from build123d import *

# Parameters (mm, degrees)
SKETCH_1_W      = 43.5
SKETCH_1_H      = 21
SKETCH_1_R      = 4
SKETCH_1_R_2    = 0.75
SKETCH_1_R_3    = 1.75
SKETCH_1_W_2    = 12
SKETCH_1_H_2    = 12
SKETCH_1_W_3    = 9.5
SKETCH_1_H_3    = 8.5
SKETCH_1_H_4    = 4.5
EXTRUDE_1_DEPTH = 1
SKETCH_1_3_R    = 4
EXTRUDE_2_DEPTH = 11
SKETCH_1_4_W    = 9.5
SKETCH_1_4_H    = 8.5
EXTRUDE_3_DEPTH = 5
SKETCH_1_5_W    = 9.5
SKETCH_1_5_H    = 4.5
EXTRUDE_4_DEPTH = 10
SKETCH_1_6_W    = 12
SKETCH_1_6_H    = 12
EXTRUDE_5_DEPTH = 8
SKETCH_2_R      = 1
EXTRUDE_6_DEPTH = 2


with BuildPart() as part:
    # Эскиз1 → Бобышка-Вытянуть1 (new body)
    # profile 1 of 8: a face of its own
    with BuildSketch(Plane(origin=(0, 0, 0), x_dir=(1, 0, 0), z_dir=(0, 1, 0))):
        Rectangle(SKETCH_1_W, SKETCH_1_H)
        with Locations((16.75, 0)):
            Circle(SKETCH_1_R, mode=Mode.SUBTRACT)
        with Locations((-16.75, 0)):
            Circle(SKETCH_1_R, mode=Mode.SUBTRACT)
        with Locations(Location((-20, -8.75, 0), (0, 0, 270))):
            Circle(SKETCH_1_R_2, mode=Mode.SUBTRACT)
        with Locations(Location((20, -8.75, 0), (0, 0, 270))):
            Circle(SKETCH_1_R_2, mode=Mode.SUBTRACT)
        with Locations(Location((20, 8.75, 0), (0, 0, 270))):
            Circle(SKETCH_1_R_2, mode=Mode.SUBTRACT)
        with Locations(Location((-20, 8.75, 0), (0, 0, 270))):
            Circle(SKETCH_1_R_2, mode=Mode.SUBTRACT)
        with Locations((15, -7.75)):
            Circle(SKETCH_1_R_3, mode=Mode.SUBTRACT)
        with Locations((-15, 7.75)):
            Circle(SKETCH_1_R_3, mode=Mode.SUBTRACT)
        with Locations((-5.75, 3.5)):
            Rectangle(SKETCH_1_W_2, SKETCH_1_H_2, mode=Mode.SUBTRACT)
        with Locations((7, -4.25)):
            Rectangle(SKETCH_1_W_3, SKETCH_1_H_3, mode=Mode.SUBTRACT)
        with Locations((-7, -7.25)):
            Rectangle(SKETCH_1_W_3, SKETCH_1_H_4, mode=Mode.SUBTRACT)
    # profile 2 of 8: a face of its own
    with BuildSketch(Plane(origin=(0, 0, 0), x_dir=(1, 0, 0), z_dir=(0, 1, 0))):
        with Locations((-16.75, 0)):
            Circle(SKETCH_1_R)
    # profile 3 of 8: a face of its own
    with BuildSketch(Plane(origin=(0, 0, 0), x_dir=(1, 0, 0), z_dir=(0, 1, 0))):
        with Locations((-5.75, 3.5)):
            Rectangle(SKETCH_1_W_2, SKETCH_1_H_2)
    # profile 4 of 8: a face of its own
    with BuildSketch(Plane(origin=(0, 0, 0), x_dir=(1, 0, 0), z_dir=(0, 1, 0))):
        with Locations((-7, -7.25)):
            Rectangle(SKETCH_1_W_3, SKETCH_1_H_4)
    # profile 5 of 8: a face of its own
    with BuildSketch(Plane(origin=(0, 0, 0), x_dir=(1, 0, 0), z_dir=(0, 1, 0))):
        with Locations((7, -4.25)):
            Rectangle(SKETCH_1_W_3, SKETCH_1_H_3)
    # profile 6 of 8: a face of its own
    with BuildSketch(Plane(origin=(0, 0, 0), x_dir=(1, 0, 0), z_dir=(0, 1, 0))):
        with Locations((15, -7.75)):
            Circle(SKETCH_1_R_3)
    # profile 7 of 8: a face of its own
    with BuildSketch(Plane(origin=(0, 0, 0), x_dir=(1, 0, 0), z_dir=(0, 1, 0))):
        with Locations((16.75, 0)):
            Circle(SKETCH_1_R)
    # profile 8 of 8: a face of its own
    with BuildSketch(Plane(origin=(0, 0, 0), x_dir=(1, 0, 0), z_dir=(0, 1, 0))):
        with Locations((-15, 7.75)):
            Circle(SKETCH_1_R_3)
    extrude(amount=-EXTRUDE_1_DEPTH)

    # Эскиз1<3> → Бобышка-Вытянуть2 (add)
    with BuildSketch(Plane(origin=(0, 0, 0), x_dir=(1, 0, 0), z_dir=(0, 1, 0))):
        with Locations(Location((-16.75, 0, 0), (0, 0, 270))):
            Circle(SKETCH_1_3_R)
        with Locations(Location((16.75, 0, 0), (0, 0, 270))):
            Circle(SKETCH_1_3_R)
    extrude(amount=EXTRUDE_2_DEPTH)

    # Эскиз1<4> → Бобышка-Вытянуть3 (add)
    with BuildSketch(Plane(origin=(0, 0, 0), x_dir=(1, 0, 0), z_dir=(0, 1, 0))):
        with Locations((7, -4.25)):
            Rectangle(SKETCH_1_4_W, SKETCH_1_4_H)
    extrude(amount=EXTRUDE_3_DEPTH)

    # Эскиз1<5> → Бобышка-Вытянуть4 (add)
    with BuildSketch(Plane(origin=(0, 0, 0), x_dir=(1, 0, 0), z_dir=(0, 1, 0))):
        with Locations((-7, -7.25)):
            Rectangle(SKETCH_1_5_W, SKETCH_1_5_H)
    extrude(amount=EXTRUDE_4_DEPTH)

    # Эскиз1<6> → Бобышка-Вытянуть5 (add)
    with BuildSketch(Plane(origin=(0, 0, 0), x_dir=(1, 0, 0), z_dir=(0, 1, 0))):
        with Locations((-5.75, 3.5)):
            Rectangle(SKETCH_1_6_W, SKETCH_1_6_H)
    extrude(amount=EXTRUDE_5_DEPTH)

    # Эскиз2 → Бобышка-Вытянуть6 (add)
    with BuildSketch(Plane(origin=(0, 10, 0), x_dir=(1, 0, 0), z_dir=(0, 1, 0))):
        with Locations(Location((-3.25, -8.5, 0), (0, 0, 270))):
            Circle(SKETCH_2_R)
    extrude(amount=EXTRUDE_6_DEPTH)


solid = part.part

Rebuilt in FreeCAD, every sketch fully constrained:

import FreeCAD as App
import Part
import Sketcher

doc = App.newDocument("Part")
body = doc.addObject("PartDesign::Body", "Body")

# Sketch on XZ plane
sketch1 = body.newObject("Sketcher::SketchObject", "Sketch")
sketch1.AttachmentSupport = (doc.getObject("XZ_Plane"), [""])
sketch1.MapMode = "FlatFace"
sketch1.addGeometry(Part.LineSegment(App.Vector(-21.8, -10.5, 0), App.Vector(-21.8, 10.5, 0)), False)
sketch1.addGeometry(Part.LineSegment(App.Vector(-21.8, 10.5, 0), App.Vector(21.8, 10.5, 0)), False)
sketch1.addGeometry(Part.LineSegment(App.Vector(21.8, 10.5, 0), App.Vector(21.8, -10.5, 0)), False)
sketch1.addGeometry(Part.LineSegment(App.Vector(21.8, -10.5, 0), App.Vector(-21.8, -10.5, 0)), False)
sketch1.addGeometry(Part.Circle(App.Vector(-20, 8.8, 0), App.Vector(0, 0, 1), 0.8), False)
sketch1.addGeometry(Part.Circle(App.Vector(20, 8.8, 0), App.Vector(0, 0, 1), 0.8), False)
sketch1.addGeometry(Part.Circle(App.Vector(-20, -8.8, 0), App.Vector(0, 0, 1), 0.8), False)
sketch1.addGeometry(Part.Circle(App.Vector(20, -8.8, 0), App.Vector(0, 0, 1), 0.8), False)
sketch1.addConstraint(Sketcher.Constraint("Coincident", 0, 2, 1, 1))
sketch1.addConstraint(Sketcher.Constraint("Coincident", 1, 2, 2, 1))
sketch1.addConstraint(Sketcher.Constraint("Coincident", 2, 2, 3, 1))
sketch1.addConstraint(Sketcher.Constraint("Coincident", 3, 2, 0, 1))
sketch1.addConstraint(Sketcher.Constraint("Vertical", 0))
sketch1.addConstraint(Sketcher.Constraint("Horizontal", 1))
sketch1.addConstraint(Sketcher.Constraint("Vertical", 2))
sketch1.addConstraint(Sketcher.Constraint("Horizontal", 3))
sketch1.addConstraint(Sketcher.Constraint("Equal", 4, 5))
sketch1.addConstraint(Sketcher.Constraint("Equal", 5, 6))
sketch1.addConstraint(Sketcher.Constraint("Equal", 6, 7))
sketch1.addConstraint(Sketcher.Constraint("Symmetric", 5, 3, 6, 3, -1, 1))
sketch1.addConstraint(Sketcher.Constraint("Symmetric", 4, 3, 7, 3, -1, 1))
sketch1.addConstraint(Sketcher.Constraint("Symmetric", 0, 2, 2, 2, -1, 1))
sketch1.addConstraint(Sketcher.Constraint("Symmetric", 4, 3, 5, 3, -2))
sketch1.addConstraint(Sketcher.Constraint("Diameter", 4, 1.5))
sketch1.addConstraint(Sketcher.Constraint("DistanceY", 0, 1, 0, 2, 21.0))
sketch1.addConstraint(Sketcher.Constraint("DistanceX", 1, 1, 1, 2, 43.5))
sketch1.addConstraint(Sketcher.Constraint("DistanceX", 4, 3, -1, 1, 20.0))
sketch1.addConstraint(Sketcher.Constraint("DistanceY", 6, 3, 4, 3, 17.5))
pad1 = body.newObject("PartDesign::Pad", "Pad")
pad1.Profile = sketch1
pad1.Length = 1

# Sketch on XZ plane
sketch2 = body.newObject("Sketcher::SketchObject", "Sketch001")
sketch2.AttachmentSupport = (doc.getObject("XZ_Plane"), [""])
sketch2.MapMode = "FlatFace"
sketch2.addGeometry(Part.Circle(App.Vector(-16.8, 0, 0), App.Vector(0, 0, 1), 4), False)
sketch2.addGeometry(Part.Circle(App.Vector(16.8, 0, 0), App.Vector(0, 0, 1), 4), False)
sketch2.addConstraint(Sketcher.Constraint("Equal", 0, 1))
sketch2.addConstraint(Sketcher.Constraint("Symmetric", 0, 3, 1, 3, -1, 1))
sketch2.addConstraint(Sketcher.Constraint("PointOnObject", 0, 3, -1))
sketch2.addConstraint(Sketcher.Constraint("Diameter", 0, 8.0))
sketch2.addConstraint(Sketcher.Constraint("DistanceX", 0, 3, 1, 3, 33.5))
pad2 = body.newObject("PartDesign::Pad", "Pad001")
pad2.Profile = sketch2
pad2.Length = 11
pad2.Reversed = True

# Sketch on XZ plane
sketch3 = body.newObject("Sketcher::SketchObject", "Sketch002")
sketch3.AttachmentSupport = (doc.getObject("XZ_Plane"), [""])
sketch3.MapMode = "FlatFace"
sketch3.addGeometry(Part.LineSegment(App.Vector(2, 0, 0), App.Vector(2, 8, 0)), False)
sketch3.addGeometry(Part.LineSegment(App.Vector(2, 8, 0), App.Vector(12, 8, 0)), False)
sketch3.addGeometry(Part.LineSegment(App.Vector(12, 8, 0), App.Vector(12, 0, 0)), False)
sketch3.addGeometry(Part.LineSegment(App.Vector(12, 0, 0), App.Vector(2, 0, 0)), False)
sketch3.addConstraint(Sketcher.Constraint("Coincident", 0, 2, 1, 1))
sketch3.addConstraint(Sketcher.Constraint("Coincident", 1, 2, 2, 1))
sketch3.addConstraint(Sketcher.Constraint("Coincident", 2, 2, 3, 1))
sketch3.addConstraint(Sketcher.Constraint("Coincident", 3, 2, 0, 1))
sketch3.addConstraint(Sketcher.Constraint("Vertical", 0))
sketch3.addConstraint(Sketcher.Constraint("Horizontal", 1))
sketch3.addConstraint(Sketcher.Constraint("Vertical", 2))
sketch3.addConstraint(Sketcher.Constraint("Horizontal", 3))
sketch3.addConstraint(Sketcher.Constraint("PointOnObject", 2, 2, -1))
sketch3.addConstraint(Sketcher.Constraint("DistanceX", 1, 1, 1, 2, 9.5))
sketch3.addConstraint(Sketcher.Constraint("DistanceY", 0, 1, 0, 2, 8.5))
sketch3.addConstraint(Sketcher.Constraint("DistanceX", -1, 1, 0, 2, 2.25))
pad3 = body.newObject("PartDesign::Pad", "Pad002")
pad3.Profile = sketch3
pad3.Length = 5
pad3.Reversed = True

# Sketch on XZ plane
sketch4 = body.newObject("Sketcher::SketchObject", "Sketch003")
sketch4.AttachmentSupport = (doc.getObject("XZ_Plane"), [""])
sketch4.MapMode = "FlatFace"
sketch4.addGeometry(Part.LineSegment(App.Vector(-11.8, 5, 0), App.Vector(-11.8, 9.5, 0)), False)
sketch4.addGeometry(Part.LineSegment(App.Vector(-11.8, 9.5, 0), App.Vector(-2.2, 9.5, 0)), False)
sketch4.addGeometry(Part.LineSegment(App.Vector(-2.2, 9.5, 0), App.Vector(-2.2, 5, 0)), False)
sketch4.addGeometry(Part.LineSegment(App.Vector(-2.2, 5, 0), App.Vector(-11.8, 5, 0)), False)
sketch4.addConstraint(Sketcher.Constraint("Coincident", 0, 2, 1, 1))
sketch4.addConstraint(Sketcher.Constraint("Coincident", 1, 2, 2, 1))
sketch4.addConstraint(Sketcher.Constraint("Coincident", 2, 2, 3, 1))
sketch4.addConstraint(Sketcher.Constraint("Coincident", 3, 2, 0, 1))
sketch4.addConstraint(Sketcher.Constraint("Vertical", 0))
sketch4.addConstraint(Sketcher.Constraint("Horizontal", 1))
sketch4.addConstraint(Sketcher.Constraint("Vertical", 2))
sketch4.addConstraint(Sketcher.Constraint("Horizontal", 3))
sketch4.addConstraint(Sketcher.Constraint("DistanceX", 1, 1, 1, 2, 9.5))
sketch4.addConstraint(Sketcher.Constraint("DistanceY", 0, 1, 0, 2, 4.5))
sketch4.addConstraint(Sketcher.Constraint("DistanceY", -1, 1, 2, 2, 5.0))
sketch4.addConstraint(Sketcher.Constraint("DistanceX", 0, 2, -1, 1, 11.75))
pad4 = body.newObject("PartDesign::Pad", "Pad003")
pad4.Profile = sketch4
pad4.Length = 10
pad4.Reversed = True

# Sketch on XZ plane
sketch5 = body.newObject("Sketcher::SketchObject", "Sketch004")
sketch5.AttachmentSupport = (doc.getObject("XZ_Plane"), [""])
sketch5.MapMode = "FlatFace"
sketch5.addGeometry(Part.LineSegment(App.Vector(-12, -10, 0), App.Vector(-12, 2, 0)), False)
sketch5.addGeometry(Part.LineSegment(App.Vector(-12, 2, 0), App.Vector(0, 2, 0)), False)
sketch5.addGeometry(Part.LineSegment(App.Vector(0, 2, 0), App.Vector(0, -10, 0)), False)
sketch5.addGeometry(Part.LineSegment(App.Vector(0, -10, 0), App.Vector(-12, -10, 0)), False)
sketch5.addConstraint(Sketcher.Constraint("Coincident", 0, 2, 1, 1))
sketch5.addConstraint(Sketcher.Constraint("Coincident", 1, 2, 2, 1))
sketch5.addConstraint(Sketcher.Constraint("Coincident", 2, 2, 3, 1))
sketch5.addConstraint(Sketcher.Constraint("Coincident", 3, 2, 0, 1))
sketch5.addConstraint(Sketcher.Constraint("Vertical", 0))
sketch5.addConstraint(Sketcher.Constraint("Horizontal", 1))
sketch5.addConstraint(Sketcher.Constraint("Vertical", 2))
sketch5.addConstraint(Sketcher.Constraint("Horizontal", 3))
sketch5.addConstraint(Sketcher.Constraint("Equal", 3, 0))
sketch5.addConstraint(Sketcher.Constraint("DistanceX", 1, 1, 1, 2, 12.0))
sketch5.addConstraint(Sketcher.Constraint("DistanceY", -1, 1, 0, 2, 2.5))
sketch5.addConstraint(Sketcher.Constraint("DistanceX", 0, 2, -1, 1, 11.75))
pad5 = body.newObject("PartDesign::Pad", "Pad004")
pad5.Profile = sketch5
pad5.Length = 8
pad5.Reversed = True

# Sketch on XZ plane
sketch6 = body.newObject("Sketcher::SketchObject", "Sketch005")
sketch6.AttachmentSupport = (doc.getObject("XZ_Plane"), [""])
sketch6.MapMode = "FlatFace"
sketch6.AttachmentOffset = App.Placement(App.Vector(0, 0, -10), App.Rotation())
sketch6.addGeometry(Part.Circle(App.Vector(-3.2, 8.5, 0), App.Vector(0, 0, 1), 1), False)
sketch6.addConstraint(Sketcher.Constraint("Diameter", 0, 2.0))
sketch6.addConstraint(Sketcher.Constraint("DistanceY", -1, 1, 0, 3, 8.5))
sketch6.addConstraint(Sketcher.Constraint("DistanceX", 0, 3, -1, 1, 3.25))
pad6 = body.newObject("PartDesign::Pad", "Pad005")
pad6.Profile = sketch6
pad6.Length = 2
pad6.Reversed = True

doc.recompute()
